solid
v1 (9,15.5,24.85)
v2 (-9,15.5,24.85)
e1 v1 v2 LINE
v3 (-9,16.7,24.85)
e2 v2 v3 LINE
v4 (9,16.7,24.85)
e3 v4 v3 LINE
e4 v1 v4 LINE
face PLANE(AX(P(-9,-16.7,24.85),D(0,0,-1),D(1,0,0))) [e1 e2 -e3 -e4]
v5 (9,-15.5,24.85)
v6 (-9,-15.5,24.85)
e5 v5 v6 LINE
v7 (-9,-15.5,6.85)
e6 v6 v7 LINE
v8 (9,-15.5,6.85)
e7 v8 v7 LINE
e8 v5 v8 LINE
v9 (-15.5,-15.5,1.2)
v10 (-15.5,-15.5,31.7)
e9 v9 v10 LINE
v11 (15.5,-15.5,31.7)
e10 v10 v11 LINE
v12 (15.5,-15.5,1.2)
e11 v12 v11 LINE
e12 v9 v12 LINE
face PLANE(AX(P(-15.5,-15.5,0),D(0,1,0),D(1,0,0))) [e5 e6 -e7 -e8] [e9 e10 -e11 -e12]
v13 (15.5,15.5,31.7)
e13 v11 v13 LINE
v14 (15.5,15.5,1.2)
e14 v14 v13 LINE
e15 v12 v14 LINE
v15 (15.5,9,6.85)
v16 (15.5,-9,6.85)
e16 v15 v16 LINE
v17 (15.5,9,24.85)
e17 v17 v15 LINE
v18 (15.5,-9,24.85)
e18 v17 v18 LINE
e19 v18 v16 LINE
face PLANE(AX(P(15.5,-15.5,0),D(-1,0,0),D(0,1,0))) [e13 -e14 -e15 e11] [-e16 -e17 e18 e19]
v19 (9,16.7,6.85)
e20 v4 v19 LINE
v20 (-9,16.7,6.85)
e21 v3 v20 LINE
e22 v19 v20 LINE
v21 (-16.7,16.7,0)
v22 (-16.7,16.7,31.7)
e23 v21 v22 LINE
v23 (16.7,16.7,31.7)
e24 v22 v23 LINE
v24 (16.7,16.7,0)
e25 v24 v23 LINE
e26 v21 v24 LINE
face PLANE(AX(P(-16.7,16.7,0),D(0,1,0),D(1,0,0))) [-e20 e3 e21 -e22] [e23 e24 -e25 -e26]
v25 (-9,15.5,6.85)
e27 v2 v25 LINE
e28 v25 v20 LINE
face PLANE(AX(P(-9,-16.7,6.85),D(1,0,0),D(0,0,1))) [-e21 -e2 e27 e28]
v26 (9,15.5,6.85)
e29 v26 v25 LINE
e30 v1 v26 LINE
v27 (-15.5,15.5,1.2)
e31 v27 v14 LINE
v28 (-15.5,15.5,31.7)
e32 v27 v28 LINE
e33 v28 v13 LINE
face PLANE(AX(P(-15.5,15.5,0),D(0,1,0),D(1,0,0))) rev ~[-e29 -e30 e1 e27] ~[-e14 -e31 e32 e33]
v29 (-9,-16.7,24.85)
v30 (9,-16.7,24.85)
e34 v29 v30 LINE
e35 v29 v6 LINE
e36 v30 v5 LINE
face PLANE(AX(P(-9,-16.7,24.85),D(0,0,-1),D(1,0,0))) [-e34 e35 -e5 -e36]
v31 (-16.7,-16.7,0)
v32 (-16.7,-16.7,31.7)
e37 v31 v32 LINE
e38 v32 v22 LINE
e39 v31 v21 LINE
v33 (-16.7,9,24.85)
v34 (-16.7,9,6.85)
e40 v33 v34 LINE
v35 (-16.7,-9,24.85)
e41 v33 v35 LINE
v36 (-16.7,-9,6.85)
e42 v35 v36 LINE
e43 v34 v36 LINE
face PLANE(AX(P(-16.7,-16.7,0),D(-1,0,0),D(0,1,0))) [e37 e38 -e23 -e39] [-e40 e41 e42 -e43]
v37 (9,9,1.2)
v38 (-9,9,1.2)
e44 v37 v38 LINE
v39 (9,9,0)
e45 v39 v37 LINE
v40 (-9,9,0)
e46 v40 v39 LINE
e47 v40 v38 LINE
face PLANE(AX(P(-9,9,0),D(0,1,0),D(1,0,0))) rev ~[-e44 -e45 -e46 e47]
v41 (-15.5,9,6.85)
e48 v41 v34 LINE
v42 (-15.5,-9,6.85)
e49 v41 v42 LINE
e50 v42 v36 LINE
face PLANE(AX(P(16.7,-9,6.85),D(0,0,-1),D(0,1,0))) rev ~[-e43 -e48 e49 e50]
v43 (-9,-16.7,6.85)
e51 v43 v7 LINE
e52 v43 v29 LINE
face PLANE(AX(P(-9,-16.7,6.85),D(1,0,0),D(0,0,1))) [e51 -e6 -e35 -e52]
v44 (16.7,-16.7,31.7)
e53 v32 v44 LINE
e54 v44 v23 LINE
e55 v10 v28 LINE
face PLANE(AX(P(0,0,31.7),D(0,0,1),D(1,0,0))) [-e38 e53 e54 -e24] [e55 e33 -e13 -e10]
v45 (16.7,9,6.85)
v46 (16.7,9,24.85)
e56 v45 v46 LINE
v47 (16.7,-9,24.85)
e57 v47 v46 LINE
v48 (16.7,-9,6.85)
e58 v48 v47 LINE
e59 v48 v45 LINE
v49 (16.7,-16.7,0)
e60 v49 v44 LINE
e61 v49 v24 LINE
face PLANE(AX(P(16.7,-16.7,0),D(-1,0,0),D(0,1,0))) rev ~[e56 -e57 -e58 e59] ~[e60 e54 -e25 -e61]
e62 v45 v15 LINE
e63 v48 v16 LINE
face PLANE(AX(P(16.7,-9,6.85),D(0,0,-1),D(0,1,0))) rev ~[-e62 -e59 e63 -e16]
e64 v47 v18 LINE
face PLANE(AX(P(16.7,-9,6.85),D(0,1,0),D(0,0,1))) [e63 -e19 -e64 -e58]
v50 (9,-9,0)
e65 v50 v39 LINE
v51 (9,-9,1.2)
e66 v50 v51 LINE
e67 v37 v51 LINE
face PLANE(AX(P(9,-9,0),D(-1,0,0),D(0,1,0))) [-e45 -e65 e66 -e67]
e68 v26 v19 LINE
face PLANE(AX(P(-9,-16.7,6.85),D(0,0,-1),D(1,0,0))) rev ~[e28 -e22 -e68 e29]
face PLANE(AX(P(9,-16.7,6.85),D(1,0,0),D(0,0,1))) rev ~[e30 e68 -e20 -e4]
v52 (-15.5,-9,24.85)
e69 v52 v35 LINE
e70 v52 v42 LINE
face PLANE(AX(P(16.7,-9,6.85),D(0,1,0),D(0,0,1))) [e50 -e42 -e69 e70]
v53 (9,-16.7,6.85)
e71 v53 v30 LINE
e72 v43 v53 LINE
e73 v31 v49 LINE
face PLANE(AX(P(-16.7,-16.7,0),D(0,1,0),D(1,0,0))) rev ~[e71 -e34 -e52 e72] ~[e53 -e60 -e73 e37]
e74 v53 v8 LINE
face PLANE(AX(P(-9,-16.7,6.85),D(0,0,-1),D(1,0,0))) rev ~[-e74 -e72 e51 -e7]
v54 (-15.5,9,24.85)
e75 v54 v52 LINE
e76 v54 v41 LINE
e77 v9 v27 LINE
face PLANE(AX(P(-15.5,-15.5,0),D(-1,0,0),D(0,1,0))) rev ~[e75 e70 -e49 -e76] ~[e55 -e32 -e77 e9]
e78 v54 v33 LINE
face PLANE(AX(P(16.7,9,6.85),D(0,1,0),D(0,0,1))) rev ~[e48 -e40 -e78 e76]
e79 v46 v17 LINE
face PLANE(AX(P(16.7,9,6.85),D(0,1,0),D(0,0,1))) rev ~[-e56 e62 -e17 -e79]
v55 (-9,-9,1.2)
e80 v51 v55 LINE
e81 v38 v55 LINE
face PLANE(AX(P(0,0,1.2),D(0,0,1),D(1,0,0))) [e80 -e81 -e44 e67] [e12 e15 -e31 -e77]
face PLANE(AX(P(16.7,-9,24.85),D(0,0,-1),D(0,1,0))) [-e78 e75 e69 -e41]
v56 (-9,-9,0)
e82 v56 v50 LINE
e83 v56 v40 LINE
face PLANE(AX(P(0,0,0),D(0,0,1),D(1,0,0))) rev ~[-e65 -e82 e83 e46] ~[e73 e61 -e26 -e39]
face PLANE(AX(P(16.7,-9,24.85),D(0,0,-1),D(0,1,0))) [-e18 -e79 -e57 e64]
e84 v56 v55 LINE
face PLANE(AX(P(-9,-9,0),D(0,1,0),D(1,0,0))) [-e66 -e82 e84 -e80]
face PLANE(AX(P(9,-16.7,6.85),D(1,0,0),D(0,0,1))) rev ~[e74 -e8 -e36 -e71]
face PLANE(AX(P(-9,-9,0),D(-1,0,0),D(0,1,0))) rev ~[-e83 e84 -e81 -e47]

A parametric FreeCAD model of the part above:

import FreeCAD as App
import Part
import Sketcher
from FreeCAD import Vector


def add_polygon(sketch, points):
    """Adds a closed chain of lines whose ends are joined by coincident constraints."""
    first, n = sketch.GeometryCount, len(points)
    for a, b in zip(points, points[1:] + points[:1]):
        sketch.addGeometry(Part.LineSegment(App.Vector(*a, 0), App.Vector(*b, 0)), False)
    for i in range(n):
        sketch.addConstraint(Sketcher.Constraint("Coincident", first + i, 2, first + (i + 1) % n, 1))

doc = App.newDocument("Part")
body = doc.addObject("PartDesign::Body", "Body")

# Sketch on XY plane
sketch1 = body.newObject("Sketcher::SketchObject", "Sketch")
sketch1.AttachmentSupport = (doc.getObject("XY_Plane"), [""])
sketch1.MapMode = "FlatFace"
add_polygon(sketch1, [(-17, 17), (-17, -17), (17, -17), (17, 17)])  # lines 0-3
add_polygon(sketch1, [(16, -16), (-16, -16), (-16, 16), (16, 16)])  # lines 4-7
sketch1.addConstraint(Sketcher.Constraint("Vertical", 0))
sketch1.addConstraint(Sketcher.Constraint("Horizontal", 1))
sketch1.addConstraint(Sketcher.Constraint("Vertical", 2))
sketch1.addConstraint(Sketcher.Constraint("Horizontal", 3))
sketch1.addConstraint(Sketcher.Constraint("Horizontal", 4))
sketch1.addConstraint(Sketcher.Constraint("Vertical", 5))
sketch1.addConstraint(Sketcher.Constraint("Horizontal", 6))
sketch1.addConstraint(Sketcher.Constraint("Vertical", 7))
sketch1.addConstraint(Sketcher.Constraint("Symmetric", 0, 2, 2, 2, -1, 1))
sketch1.addConstraint(Sketcher.Constraint("Symmetric", 4, 2, 6, 2, -1, 1))
sketch1.addConstraint(Sketcher.Constraint("Equal", 3, 0))
sketch1.addConstraint(Sketcher.Constraint("Equal", 6, 5))
sketch1.addConstraint(Sketcher.Constraint("DistanceX", 4, 2, 4, 1, 31.0))
sketch1.addConstraint(Sketcher.Constraint("DistanceX", 1, 1, 1, 2, 33.4))
pad1 = body.newObject("PartDesign::Pad", "Pad")
pad1.Profile = sketch1
pad1.Length = 31.7

# Sketch on XY plane
sketch2 = body.newObject("Sketcher::SketchObject", "Sketch001")
sketch2.AttachmentSupport = (doc.getObject("XY_Plane"), [""])
sketch2.MapMode = "FlatFace"
add_polygon(sketch2, [(-16, 16), (-16, -16), (16, -16), (16, 16)])  # lines 0-3
sketch2.addConstraint(Sketcher.Constraint("Vertical", 0))
sketch2.addConstraint(Sketcher.Constraint("Horizontal", 1))
sketch2.addConstraint(Sketcher.Constraint("Vertical", 2))
sketch2.addConstraint(Sketcher.Constraint("Horizontal", 3))
sketch2.addConstraint(Sketcher.Constraint("Symmetric", 0, 2, 2, 2, -1, 1))
sketch2.addConstraint(Sketcher.Constraint("Equal", 3, 0))
sketch2.addConstraint(Sketcher.Constraint("DistanceX", 1, 1, 1, 2, 31.0))
pad2 = body.newObject("PartDesign::Pad", "Pad001")
pad2.Profile = sketch2
pad2.Length = 1.2

# Sketch on XZ plane
sketch3 = body.newObject("Sketcher::SketchObject", "Sketch002")
sketch3.AttachmentSupport = (doc.getObject("XZ_Plane"), [""])
sketch3.MapMode = "FlatFace"
sketch3.AttachmentOffset = App.Placement(Vector(0, 0, 16.7), App.Rotation())
add_polygon(sketch3, [(-9, 25), (-9, 7), (9, 7), (9, 25)])  # lines 0-3
sketch3.addConstraint(Sketcher.Constraint("Vertical", 0))
sketch3.addConstraint(Sketcher.Constraint("Horizontal", 1))
sketch3.addConstraint(Sketcher.Constraint("Vertical", 2))
sketch3.addConstraint(Sketcher.Constraint("Horizontal", 3))
sketch3.addConstraint(Sketcher.Constraint("Equal", 3, 0))
sketch3.addConstraint(Sketcher.Constraint("DistanceX", 1, 1, 1, 2, 18.0))
sketch3.addConstraint(Sketcher.Constraint("DistanceX", 0, 2, -1, 1, 9.0))
sketch3.addConstraint(Sketcher.Constraint("DistanceY", -1, 1, 0, 2, 6.85))
pocket1 = body.newObject("PartDesign::Pocket", "Pocket")
pocket1.Profile = sketch3
pocket1.Type = "ThroughAll"

# Sketch on YZ plane
sketch4 = body.newObject("Sketcher::SketchObject", "Sketch003")
sketch4.AttachmentSupport = (doc.getObject("YZ_Plane"), [""])
sketch4.MapMode = "FlatFace"
sketch4.AttachmentOffset = App.Placement(Vector(0, 0, 16.7), App.Rotation())
add_polygon(sketch4, [(-9, 25), (-9, 7), (9, 7), (9, 25)])  # lines 0-3
sketch4.addConstraint(Sketcher.Constraint("Vertical", 0))
sketch4.addConstraint(Sketcher.Constraint("Horizontal", 1))
sketch4.addConstraint(Sketcher.Constraint("Vertical", 2))
sketch4.addConstraint(Sketcher.Constraint("Horizontal", 3))
sketch4.addConstraint(Sketcher.Constraint("Equal", 3, 0))
sketch4.addConstraint(Sketcher.Constraint("DistanceX", 1, 1, 1, 2, 18.0))
sketch4.addConstraint(Sketcher.Constraint("DistanceX", 0, 2, -1, 1, 9.0))
sketch4.addConstraint(Sketcher.Constraint("DistanceY", -1, 1, 0, 2, 6.85))
pocket2 = body.newObject("PartDesign::Pocket", "Pocket001")
pocket2.Profile = sketch4
pocket2.Type = "ThroughAll"

# Sketch on XY plane
sketch5 = body.newObject("Sketcher::SketchObject", "Sketch004")
sketch5.AttachmentSupport = (doc.getObject("XY_Plane"), [""])
sketch5.MapMode = "FlatFace"
add_polygon(sketch5, [(-9, 9), (-9, -9), (9, -9), (9, 9)])  # lines 0-3
sketch5.addConstraint(Sketcher.Constraint("Vertical", 0))
sketch5.addConstraint(Sketcher.Constraint("Horizontal", 1))
sketch5.addConstraint(Sketcher.Constraint("Vertical", 2))
sketch5.addConstraint(Sketcher.Constraint("Horizontal", 3))
sketch5.addConstraint(Sketcher.Constraint("Symmetric", 0, 2, 2, 2, -1, 1))
sketch5.addConstraint(Sketcher.Constraint("Equal", 3, 0))
sketch5.addConstraint(Sketcher.Constraint("DistanceX", 1, 1, 1, 2, 18.0))
pocket3 = body.newObject("PartDesign::Pocket", "Pocket002")
pocket3.Profile = sketch5
pocket3.Type = "ThroughAll"
pocket3.Reversed = True

doc.recompute()
